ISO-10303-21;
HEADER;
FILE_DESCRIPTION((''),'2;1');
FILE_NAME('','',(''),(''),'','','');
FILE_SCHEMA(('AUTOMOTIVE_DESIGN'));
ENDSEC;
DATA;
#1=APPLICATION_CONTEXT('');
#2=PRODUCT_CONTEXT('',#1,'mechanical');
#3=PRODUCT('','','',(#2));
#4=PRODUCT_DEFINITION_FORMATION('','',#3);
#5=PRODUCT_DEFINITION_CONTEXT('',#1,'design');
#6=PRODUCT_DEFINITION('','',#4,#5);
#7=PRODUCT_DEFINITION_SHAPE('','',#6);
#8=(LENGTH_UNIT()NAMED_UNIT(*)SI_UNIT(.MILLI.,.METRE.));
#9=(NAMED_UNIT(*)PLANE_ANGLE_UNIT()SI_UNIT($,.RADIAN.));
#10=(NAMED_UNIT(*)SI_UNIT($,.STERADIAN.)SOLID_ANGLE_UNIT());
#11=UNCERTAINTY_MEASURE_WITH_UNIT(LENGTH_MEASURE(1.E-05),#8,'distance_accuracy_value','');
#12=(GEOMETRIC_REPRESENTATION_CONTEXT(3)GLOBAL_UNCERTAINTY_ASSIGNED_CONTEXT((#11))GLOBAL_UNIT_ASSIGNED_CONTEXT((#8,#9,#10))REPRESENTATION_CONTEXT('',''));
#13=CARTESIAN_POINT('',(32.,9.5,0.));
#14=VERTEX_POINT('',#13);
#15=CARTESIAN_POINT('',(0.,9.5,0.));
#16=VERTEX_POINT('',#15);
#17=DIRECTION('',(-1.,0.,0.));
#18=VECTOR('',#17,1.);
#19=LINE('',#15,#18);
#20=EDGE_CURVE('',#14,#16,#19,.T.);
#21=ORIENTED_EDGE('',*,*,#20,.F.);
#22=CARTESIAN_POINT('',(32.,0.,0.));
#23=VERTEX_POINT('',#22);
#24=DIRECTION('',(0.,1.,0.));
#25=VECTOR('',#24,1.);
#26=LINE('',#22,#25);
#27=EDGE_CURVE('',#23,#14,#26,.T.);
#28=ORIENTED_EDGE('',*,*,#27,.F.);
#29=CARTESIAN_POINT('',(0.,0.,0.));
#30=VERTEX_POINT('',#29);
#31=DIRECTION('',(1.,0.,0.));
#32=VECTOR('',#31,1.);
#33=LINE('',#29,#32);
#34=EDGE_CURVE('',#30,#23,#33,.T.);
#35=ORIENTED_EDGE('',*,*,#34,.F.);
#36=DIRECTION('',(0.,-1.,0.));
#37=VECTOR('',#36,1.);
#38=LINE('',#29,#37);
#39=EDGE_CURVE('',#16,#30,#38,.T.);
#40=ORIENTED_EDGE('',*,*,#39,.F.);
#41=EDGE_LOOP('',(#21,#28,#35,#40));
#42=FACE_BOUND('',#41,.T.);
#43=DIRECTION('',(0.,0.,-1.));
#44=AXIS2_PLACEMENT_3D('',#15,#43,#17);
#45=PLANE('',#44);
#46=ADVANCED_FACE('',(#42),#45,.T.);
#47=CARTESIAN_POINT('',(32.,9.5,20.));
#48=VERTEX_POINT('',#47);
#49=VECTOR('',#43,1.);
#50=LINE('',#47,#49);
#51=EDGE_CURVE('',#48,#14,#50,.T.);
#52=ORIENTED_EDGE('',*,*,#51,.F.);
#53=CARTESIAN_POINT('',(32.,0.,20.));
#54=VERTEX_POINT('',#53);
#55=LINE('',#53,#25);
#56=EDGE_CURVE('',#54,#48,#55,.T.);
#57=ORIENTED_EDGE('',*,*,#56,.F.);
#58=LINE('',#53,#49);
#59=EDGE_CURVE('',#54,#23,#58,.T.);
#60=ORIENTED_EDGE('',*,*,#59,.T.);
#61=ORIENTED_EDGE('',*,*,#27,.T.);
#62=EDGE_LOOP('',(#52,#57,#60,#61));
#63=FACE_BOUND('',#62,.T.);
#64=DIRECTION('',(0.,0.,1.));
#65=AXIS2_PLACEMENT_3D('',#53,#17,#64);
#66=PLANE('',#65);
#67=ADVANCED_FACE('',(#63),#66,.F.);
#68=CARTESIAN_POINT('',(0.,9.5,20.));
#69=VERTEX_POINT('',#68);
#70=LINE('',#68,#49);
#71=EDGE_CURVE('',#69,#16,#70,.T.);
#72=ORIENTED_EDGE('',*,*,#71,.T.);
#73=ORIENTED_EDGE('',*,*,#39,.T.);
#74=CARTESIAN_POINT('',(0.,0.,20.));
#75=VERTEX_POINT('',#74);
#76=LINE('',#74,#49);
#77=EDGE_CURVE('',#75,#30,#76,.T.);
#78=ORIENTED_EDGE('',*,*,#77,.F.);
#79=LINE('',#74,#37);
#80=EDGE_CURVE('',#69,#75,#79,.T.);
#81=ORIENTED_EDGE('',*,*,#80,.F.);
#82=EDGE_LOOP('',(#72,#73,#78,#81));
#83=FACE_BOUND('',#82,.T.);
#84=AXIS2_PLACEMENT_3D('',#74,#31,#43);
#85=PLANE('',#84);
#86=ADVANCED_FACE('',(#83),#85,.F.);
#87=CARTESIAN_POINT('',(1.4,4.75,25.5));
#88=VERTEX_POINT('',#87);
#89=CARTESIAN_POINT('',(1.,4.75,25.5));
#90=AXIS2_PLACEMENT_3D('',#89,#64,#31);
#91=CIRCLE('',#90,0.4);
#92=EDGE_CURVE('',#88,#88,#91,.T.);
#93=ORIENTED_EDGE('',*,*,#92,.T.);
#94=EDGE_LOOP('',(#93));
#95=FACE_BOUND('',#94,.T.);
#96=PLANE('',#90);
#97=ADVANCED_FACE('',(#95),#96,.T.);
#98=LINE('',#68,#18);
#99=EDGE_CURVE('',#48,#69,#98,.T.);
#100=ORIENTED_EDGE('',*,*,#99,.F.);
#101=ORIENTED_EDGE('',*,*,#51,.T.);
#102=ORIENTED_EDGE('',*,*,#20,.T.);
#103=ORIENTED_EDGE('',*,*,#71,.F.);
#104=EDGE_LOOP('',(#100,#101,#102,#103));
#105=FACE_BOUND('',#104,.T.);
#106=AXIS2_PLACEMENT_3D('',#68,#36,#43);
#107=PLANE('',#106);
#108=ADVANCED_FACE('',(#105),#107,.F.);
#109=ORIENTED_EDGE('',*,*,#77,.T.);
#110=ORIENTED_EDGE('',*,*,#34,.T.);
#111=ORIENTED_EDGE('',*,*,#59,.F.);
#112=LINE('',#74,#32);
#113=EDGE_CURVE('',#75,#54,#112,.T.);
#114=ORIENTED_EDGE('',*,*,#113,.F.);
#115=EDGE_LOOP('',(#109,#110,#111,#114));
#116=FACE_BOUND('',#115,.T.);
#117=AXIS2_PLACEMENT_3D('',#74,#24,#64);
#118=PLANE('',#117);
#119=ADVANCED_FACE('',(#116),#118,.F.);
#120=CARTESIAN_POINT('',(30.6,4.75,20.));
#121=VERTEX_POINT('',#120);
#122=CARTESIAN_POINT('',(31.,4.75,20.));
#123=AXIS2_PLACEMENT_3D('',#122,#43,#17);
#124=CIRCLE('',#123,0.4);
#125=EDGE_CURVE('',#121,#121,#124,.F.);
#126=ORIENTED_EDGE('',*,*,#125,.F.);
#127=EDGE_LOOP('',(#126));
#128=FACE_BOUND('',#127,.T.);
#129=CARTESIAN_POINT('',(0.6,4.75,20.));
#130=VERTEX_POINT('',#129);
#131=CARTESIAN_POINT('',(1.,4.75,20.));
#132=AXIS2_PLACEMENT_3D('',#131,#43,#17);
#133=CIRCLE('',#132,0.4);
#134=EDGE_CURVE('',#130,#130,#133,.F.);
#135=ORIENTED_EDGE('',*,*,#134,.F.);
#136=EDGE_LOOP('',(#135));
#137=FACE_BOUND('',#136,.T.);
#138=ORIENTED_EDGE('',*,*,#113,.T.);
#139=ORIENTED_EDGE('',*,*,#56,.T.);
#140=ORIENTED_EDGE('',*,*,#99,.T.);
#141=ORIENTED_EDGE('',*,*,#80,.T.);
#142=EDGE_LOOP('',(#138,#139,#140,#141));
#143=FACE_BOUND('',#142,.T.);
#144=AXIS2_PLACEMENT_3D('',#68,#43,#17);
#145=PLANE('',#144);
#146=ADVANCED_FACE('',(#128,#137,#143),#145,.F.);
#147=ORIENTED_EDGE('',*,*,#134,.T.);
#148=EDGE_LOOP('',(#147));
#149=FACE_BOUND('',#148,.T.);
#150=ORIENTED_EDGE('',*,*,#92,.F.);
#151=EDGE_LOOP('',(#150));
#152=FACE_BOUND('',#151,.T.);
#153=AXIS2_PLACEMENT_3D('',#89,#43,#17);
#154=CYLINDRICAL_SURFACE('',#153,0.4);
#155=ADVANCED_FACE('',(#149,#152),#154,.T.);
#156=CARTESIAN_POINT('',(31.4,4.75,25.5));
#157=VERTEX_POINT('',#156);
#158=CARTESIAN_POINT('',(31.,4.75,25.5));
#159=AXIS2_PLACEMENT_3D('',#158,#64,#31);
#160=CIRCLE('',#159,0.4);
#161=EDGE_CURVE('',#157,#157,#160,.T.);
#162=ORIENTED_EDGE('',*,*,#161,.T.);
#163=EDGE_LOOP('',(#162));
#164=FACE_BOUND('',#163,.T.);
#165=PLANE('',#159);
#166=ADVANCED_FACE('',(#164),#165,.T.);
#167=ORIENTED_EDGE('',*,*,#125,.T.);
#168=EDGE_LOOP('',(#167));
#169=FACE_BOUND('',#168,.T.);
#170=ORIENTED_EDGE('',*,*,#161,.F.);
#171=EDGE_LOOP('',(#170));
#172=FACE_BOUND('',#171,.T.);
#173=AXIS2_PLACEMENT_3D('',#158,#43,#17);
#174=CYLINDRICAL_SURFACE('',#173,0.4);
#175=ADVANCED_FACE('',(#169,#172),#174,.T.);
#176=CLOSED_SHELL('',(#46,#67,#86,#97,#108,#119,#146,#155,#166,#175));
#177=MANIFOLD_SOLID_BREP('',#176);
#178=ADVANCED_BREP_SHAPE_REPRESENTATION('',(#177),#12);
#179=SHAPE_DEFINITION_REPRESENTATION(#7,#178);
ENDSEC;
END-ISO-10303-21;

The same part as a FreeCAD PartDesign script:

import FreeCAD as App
import Part
import Sketcher

V = App.Vector

doc = App.newDocument("Part")
body = doc.addObject("PartDesign::Body", "Body")

# Sketch on XY plane
sketch1 = body.newObject("Sketcher::SketchObject", "Sketch")
sketch1.AttachmentSupport = (doc.getObject("XY_Plane"), [""])
sketch1.MapMode = "FlatFace"
sketch1.addGeometry([
    Part.LineSegment(V(0, 9.5, 0), V(0, 0, 0)),
    Part.LineSegment(V(0, 0, 0), V(32, 0, 0)),
    Part.LineSegment(V(32, 0, 0), V(32, 9.5, 0)),
    Part.LineSegment(V(32, 9.5, 0), V(0, 9.5, 0)),
], False)
sketch1.addConstraint([
    Sketcher.Constraint("Coincident", 0, 2, 1, 1),
    Sketcher.Constraint("Coincident", 1, 2, 2, 1),
    Sketcher.Constraint("Coincident", 2, 2, 3, 1),
    Sketcher.Constraint("Coincident", 3, 2, 0, 1),
    Sketcher.Constraint("Vertical", 0),
    Sketcher.Constraint("Horizontal", 1),
    Sketcher.Constraint("Vertical", 2),
    Sketcher.Constraint("Horizontal", 3),
    Sketcher.Constraint("Coincident", 0, 2, -1, 1),
    Sketcher.Constraint("DistanceX", 1, 1, 1, 2, 32.0),
    Sketcher.Constraint("DistanceY", 0, 2, 0, 1, 9.5),
])
pad1 = body.newObject("PartDesign::Pad", "Pad")
pad1.Profile = sketch1
pad1.Length = 20

# Sketch on XY plane
sketch2 = body.newObject("Sketcher::SketchObject", "Sketch001")
sketch2.AttachmentSupport = (doc.getObject("XY_Plane"), [""])
sketch2.MapMode = "FlatFace"
sketch2.AttachmentOffset = App.Placement(V(0, 0, 20), App.Rotation())
sketch2.addGeometry([
    Part.Circle(V(1, 4.75, 0), V(0, 0, 1), 0.4),
    Part.Circle(V(31, 4.75, 0), V(0, 0, 1), 0.4),
], False)
sketch2.addConstraint([
    Sketcher.Constraint("Equal", 0, 1),
    Sketcher.Constraint("Horizontal", 0, 3, 1, 3),
    Sketcher.Constraint("Diameter", 0, 0.8),
    Sketcher.Constraint("DistanceX", -1, 1, 0, 3, 1.0),
    Sketcher.Constraint("DistanceX", -1, 1, 1, 3, 31.0),
    Sketcher.Constraint("DistanceY", -1, 1, 0, 3, 4.75),
])
pad2 = body.newObject("PartDesign::Pad", "Pad001")
pad2.Profile = sketch2
pad2.Length = 5.5

doc.recompute()
